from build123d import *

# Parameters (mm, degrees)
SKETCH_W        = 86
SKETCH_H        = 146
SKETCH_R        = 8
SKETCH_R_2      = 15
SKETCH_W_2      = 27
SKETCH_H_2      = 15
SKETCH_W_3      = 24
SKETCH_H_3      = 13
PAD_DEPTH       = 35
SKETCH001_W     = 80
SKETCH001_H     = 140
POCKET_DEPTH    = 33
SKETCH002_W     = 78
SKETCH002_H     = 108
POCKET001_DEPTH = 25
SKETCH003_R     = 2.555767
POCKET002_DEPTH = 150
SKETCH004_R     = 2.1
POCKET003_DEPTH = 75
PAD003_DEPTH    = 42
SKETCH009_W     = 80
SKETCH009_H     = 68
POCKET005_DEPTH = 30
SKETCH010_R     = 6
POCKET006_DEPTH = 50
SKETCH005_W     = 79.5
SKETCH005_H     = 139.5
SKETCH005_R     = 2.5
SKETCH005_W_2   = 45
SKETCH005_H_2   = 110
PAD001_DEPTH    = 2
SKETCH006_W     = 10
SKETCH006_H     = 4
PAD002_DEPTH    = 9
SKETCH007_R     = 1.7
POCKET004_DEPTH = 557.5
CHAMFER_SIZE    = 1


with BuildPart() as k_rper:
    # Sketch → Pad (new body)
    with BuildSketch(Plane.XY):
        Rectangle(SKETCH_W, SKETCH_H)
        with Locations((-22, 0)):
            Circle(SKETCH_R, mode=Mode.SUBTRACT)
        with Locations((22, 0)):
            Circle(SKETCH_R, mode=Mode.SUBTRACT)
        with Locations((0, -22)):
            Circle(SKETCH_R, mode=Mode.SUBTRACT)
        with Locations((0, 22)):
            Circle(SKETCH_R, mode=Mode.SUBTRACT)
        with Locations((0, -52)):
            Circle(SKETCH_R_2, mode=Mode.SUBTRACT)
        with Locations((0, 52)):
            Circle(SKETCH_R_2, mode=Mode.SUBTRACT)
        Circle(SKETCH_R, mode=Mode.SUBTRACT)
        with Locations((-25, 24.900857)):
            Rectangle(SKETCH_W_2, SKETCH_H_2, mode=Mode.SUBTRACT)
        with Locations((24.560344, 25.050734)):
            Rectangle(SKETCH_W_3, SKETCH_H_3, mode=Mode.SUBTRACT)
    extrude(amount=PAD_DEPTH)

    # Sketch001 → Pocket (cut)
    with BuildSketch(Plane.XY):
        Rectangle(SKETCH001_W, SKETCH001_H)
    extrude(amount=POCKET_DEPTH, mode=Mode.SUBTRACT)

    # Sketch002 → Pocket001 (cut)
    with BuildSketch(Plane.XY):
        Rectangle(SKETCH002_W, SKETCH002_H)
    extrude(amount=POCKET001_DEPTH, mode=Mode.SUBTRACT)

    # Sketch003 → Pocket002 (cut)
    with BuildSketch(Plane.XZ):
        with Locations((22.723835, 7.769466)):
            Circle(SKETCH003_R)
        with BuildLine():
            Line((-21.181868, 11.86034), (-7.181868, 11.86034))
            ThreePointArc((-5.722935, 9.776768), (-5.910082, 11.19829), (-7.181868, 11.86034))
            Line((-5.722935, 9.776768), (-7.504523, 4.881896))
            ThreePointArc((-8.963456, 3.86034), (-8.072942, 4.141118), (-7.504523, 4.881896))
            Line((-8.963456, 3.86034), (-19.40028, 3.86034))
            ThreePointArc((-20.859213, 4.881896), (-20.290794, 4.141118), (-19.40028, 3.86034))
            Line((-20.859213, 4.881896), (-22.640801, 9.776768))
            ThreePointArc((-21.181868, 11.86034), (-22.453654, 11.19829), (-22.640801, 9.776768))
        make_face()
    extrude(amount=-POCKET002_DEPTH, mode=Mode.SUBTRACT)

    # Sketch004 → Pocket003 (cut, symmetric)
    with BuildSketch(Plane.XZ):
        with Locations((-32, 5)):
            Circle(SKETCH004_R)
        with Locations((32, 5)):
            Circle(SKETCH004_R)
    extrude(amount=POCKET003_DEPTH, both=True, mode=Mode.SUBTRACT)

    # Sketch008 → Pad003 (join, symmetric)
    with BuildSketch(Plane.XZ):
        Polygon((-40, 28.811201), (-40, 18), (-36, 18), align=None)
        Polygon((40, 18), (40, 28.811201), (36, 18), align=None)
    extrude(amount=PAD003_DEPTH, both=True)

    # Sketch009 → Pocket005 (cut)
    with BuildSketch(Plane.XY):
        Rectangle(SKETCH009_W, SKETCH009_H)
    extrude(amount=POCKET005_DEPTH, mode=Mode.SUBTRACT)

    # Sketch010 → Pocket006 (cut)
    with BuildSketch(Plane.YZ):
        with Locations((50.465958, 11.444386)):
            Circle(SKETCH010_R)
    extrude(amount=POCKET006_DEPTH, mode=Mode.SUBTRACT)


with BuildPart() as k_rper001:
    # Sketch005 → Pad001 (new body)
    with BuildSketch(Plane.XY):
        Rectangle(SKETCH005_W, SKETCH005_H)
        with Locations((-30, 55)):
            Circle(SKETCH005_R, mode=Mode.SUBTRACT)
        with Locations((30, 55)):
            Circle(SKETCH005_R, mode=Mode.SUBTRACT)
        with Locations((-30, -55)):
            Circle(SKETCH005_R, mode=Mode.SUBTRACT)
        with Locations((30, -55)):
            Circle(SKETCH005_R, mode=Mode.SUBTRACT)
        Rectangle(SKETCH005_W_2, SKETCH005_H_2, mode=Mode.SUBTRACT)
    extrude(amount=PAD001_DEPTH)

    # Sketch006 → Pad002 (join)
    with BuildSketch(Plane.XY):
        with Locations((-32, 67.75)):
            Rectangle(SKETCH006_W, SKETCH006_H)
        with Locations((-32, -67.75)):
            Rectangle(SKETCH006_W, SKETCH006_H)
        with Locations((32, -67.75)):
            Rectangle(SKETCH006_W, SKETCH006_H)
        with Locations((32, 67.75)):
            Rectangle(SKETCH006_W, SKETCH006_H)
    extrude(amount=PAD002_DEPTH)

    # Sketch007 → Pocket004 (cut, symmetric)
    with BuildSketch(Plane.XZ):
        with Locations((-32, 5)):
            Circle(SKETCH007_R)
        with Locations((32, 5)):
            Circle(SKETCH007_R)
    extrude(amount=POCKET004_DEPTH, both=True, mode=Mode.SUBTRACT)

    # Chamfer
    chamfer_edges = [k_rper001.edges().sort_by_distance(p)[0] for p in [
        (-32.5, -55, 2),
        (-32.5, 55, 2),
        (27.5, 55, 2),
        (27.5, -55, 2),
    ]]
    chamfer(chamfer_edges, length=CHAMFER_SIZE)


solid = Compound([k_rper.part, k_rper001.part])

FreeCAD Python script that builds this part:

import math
import FreeCAD as App
import Part
import Sketcher
Q = App.Units.Quantity


def edges_at(feature, points):
    """Names of the edges that pass closest to the given points."""
    edges = feature.Shape.Edges
    near = lambda p: min(range(len(edges)), key=lambda i: edges[i].distToShape(Part.Vertex(*p))[0])
    return sorted({f"Edge{near(p) + 1}" for p in points})


def add_polygon(sketch, points):
    """Adds a closed chain of lines whose ends are joined by coincident constraints."""
    first, n = sketch.GeometryCount, len(points)
    for a, b in zip(points, points[1:] + points[:1]):
        sketch.addGeometry(Part.LineSegment(App.Vector(*a, 0), App.Vector(*b, 0)), False)
    for i in range(n):
        sketch.addConstraint(Sketcher.Constraint("Coincident", first + i, 2, first + (i + 1) % n, 1))

doc = App.newDocument("Part")
body = doc.addObject("PartDesign::Body", "Body")

sketch1 = body.newObject("Sketcher::SketchObject", "Sketch")
sketch1.AttachmentSupport = (doc.getObject("XY_Plane"), [""])
sketch1.MapMode = "FlatFace"
add_polygon(sketch1, [(-43, 73), (-43, -73), (43, -73), (43, 73)])
sketch1.addGeometry(Part.Circle(App.Vector(0, -52, 0), App.Vector(0, 0, 1), 15), False)
sketch1.addGeometry(Part.Circle(App.Vector(0, -22, 0), App.Vector(0, 0, 1), 8), False)
sketch1.addGeometry(Part.Circle(App.Vector(-22, 0, 0), App.Vector(0, 0, 1), 8), False)
add_polygon(sketch1, [(-11.5, 17.400857), (-38.5, 17.400857), (-38.5, 32.400857), (-11.5, 32.400857)])
sketch1.addGeometry(Part.Circle(App.Vector(0, 0, 0), App.Vector(0, 0, 1), 8), False)
sketch1.addGeometry(Part.Circle(App.Vector(0, 22, 0), App.Vector(0, 0, 1), 8), False)
sketch1.addGeometry(Part.Circle(App.Vector(22, 0, 0), App.Vector(0, 0, 1), 8), False)
add_polygon(sketch1, [(36.560344, 18.550734), (12.560344, 18.550734), (12.560344, 31.550734), (36.560344, 31.550734)])
sketch1.addGeometry(Part.Circle(App.Vector(0, 52, 0), App.Vector(0, 0, 1), 15), False)
sketch1.addConstraint(Sketcher.Constraint("Vertical", 0))
sketch1.addConstraint(Sketcher.Constraint("Horizontal", 1))
sketch1.addConstraint(Sketcher.Constraint("Vertical", 2))
sketch1.addConstraint(Sketcher.Constraint("Horizontal", 3))
sketch1.addConstraint(Sketcher.Constraint("Horizontal", 7))
sketch1.addConstraint(Sketcher.Constraint("Vertical", 8))
sketch1.addConstraint(Sketcher.Constraint("Horizontal", 9))
sketch1.addConstraint(Sketcher.Constraint("Vertical", 10))
sketch1.addConstraint(Sketcher.Constraint("Horizontal", 14))
sketch1.addConstraint(Sketcher.Constraint("Vertical", 15))
sketch1.addConstraint(Sketcher.Constraint("Horizontal", 16))
sketch1.addConstraint(Sketcher.Constraint("Vertical", 17))
sketch1.addConstraint(Sketcher.Constraint("Coincident", 11, 3, -1, 1))
sketch1.addConstraint(Sketcher.Constraint("Equal", 5, 6))
sketch1.addConstraint(Sketcher.Constraint("Equal", 6, 11))
sketch1.addConstraint(Sketcher.Constraint("Equal", 11, 12))
sketch1.addConstraint(Sketcher.Constraint("Equal", 12, 13))
sketch1.addConstraint(Sketcher.Constraint("Equal", 4, 18))
sketch1.addConstraint(Sketcher.Constraint("Symmetric", 5, 3, 12, 3, -1, 1))
sketch1.addConstraint(Sketcher.Constraint("Symmetric", 6, 3, 13, 3, -1, 1))
sketch1.addConstraint(Sketcher.Constraint("Symmetric", 4, 3, 18, 3, -1, 1))
sketch1.addConstraint(Sketcher.Constraint("Symmetric", 0, 2, 2, 2, -1, 1))
sketch1.addConstraint(Sketcher.Constraint("PointOnObject", 4, 3, -2))
sketch1.addConstraint(Sketcher.Constraint("PointOnObject", 5, 3, -2))
sketch1.addConstraint(Sketcher.Constraint("PointOnObject", 6, 3, -1))
sketch1.addConstraint(Sketcher.Constraint("Diameter", 4, 30.0))
sketch1.addConstraint(Sketcher.Constraint("Diameter", 5, 16.0))
sketch1.addConstraint(Sketcher.Constraint("DistanceX", 1, 1, 1, 2, 86.0))
sketch1.addConstraint(Sketcher.Constraint("DistanceX", 7, 2, 7, 1, 27.0))
sketch1.addConstraint(Sketcher.Constraint("DistanceX", 14, 2, 14, 1, 24.0))
sketch1.addConstraint(Sketcher.Constraint("DistanceY", 0, 2, 0, 1, 146.0))
sketch1.addConstraint(Sketcher.Constraint("DistanceY", 8, 1, 8, 2, 15.0))
sketch1.addConstraint(Sketcher.Constraint("DistanceY", 15, 1, 15, 2, 13.0))
sketch1.addConstraint(Sketcher.Constraint("DistanceY", 4, 3, -1, 1, 52.0))
sketch1.addConstraint(Sketcher.Constraint("DistanceY", 5, 3, -1, 1, 22.0))
sketch1.addConstraint(Sketcher.Constraint("DistanceX", 6, 3, -1, 1, 22.0))
sketch1.addConstraint(Sketcher.Constraint("DistanceX", 7, 2, -1, 1, 38.5))
sketch1.addConstraint(Sketcher.Constraint("DistanceY", -1, 1, 7, 2, 17.400857))
sketch1.addConstraint(Sketcher.Constraint("DistanceX", -1, 1, 14, 2, 12.560344))
sketch1.addConstraint(Sketcher.Constraint("DistanceY", -1, 1, 14, 2, 18.550734))
pad1 = body.newObject("PartDesign::Pad", "Pad")
pad1.Profile = sketch1
pad1.Length = 35

sketch2 = body.newObject("Sketcher::SketchObject", "Sketch001")
sketch2.AttachmentSupport = (doc.getObject("XY_Plane"), [""])
sketch2.MapMode = "FlatFace"
add_polygon(sketch2, [(-40, 70), (-40, -70), (40, -70), (40, 70)])
sketch2.addConstraint(Sketcher.Constraint("Vertical", 0))
sketch2.addConstraint(Sketcher.Constraint("Horizontal", 1))
sketch2.addConstraint(Sketcher.Constraint("Vertical", 2))
sketch2.addConstraint(Sketcher.Constraint("Horizontal", 3))
sketch2.addConstraint(Sketcher.Constraint("Symmetric", 0, 2, 2, 2, -1, 1))
sketch2.addConstraint(Sketcher.Constraint("DistanceX", 1, 1, 1, 2, 80.0))
sketch2.addConstraint(Sketcher.Constraint("DistanceY", 0, 2, 0, 1, 140.0))
pocket1 = body.newObject("PartDesign::Pocket", "Pocket")
pocket1.Profile = sketch2
pocket1.Length = 33
pocket1.Reversed = True

sketch3 = body.newObject("Sketcher::SketchObject", "Sketch002")
sketch3.AttachmentSupport = (doc.getObject("XY_Plane"), [""])
sketch3.MapMode = "FlatFace"
add_polygon(sketch3, [(-39, 54), (-39, -54), (39, -54), (39, 54)])
sketch3.addConstraint(Sketcher.Constraint("Vertical", 0))
sketch3.addConstraint(Sketcher.Constraint("Horizontal", 1))
sketch3.addConstraint(Sketcher.Constraint("Vertical", 2))
sketch3.addConstraint(Sketcher.Constraint("Horizontal", 3))
sketch3.addConstraint(Sketcher.Constraint("Symmetric", 0, 2, 2, 2, -1, 1))
sketch3.addConstraint(Sketcher.Constraint("DistanceX", 1, 1, 1, 2, 78.0))
sketch3.addConstraint(Sketcher.Constraint("DistanceY", 0, 2, 0, 1, 108.0))
pocket2 = body.newObject("PartDesign::Pocket", "Pocket001")
pocket2.Profile = sketch3
pocket2.Length = 25
pocket2.Reversed = True

sketch4 = body.newObject("Sketcher::SketchObject", "Sketch003")
sketch4.AttachmentSupport = (doc.getObject("XZ_Plane"), [""])
sketch4.MapMode = "FlatFace"
sketch4.addGeometry(Part.Circle(App.Vector(22.723835, 7.769466, 0), App.Vector(0, 0, 1), 2.555767), False)
sketch4.addGeometry(Part.LineSegment(App.Vector(-7.181868, 11.86034, 0), App.Vector(-21.181868, 11.86034, 0)), False)
sketch4.addGeometry(Part.ArcOfCircle(Part.Circle(App.Vector(-21.181868, 10.307776, 0), App.Vector(0, 0, 1), 1.552564), math.radians(90.000004), math.radians(199.99999)), False)
sketch4.addGeometry(Part.LineSegment(App.Vector(-22.640801, 9.776768, 0), App.Vector(-20.859213, 4.881896, 0)), False)
sketch4.addGeometry(Part.ArcOfCircle(Part.Circle(App.Vector(-19.40028, 5.412904, 0), App.Vector(0, 0, 1), 1.552564), math.radians(-160), math.radians(-90.000006)), False)
sketch4.addGeometry(Part.LineSegment(App.Vector(-19.40028, 3.86034, 0), App.Vector(-8.963456, 3.86034, 0)), False)
sketch4.addGeometry(Part.ArcOfCircle(Part.Circle(App.Vector(-8.963456, 5.412904, 0), App.Vector(0, 0, 1), 1.552564), math.radians(-89.999994), math.radians(-20)), False)
sketch4.addGeometry(Part.LineSegment(App.Vector(-7.504523, 4.881896, 0), App.Vector(-5.722935, 9.776768, 0)), False)
sketch4.addGeometry(Part.ArcOfCircle(Part.Circle(App.Vector(-7.181868, 10.307776, 0), App.Vector(0, 0, 1), 1.552564), math.radians(-19.99999), math.radians(89.999996)), False)
sketch4.addConstraint(Sketcher.Constraint("Tangent", 1, 2, 2, 1))
sketch4.addConstraint(Sketcher.Constraint("Tangent", 2, 2, 3, 1))
sketch4.addConstraint(Sketcher.Constraint("Tangent", 3, 2, 4, 1))
sketch4.addConstraint(Sketcher.Constraint("Tangent", 4, 2, 5, 1))
sketch4.addConstraint(Sketcher.Constraint("Tangent", 5, 2, 6, 1))
sketch4.addConstraint(Sketcher.Constraint("Tangent", 6, 2, 7, 1))
sketch4.addConstraint(Sketcher.Constraint("Tangent", 7, 2, 8, 1))
sketch4.addConstraint(Sketcher.Constraint("Tangent", 8, 2, 1, 1))
sketch4.addConstraint(Sketcher.Constraint("Horizontal", 1))
sketch4.addConstraint(Sketcher.Constraint("Horizontal", 5))
sketch4.addConstraint(Sketcher.Constraint("Equal", 2, 4))
sketch4.addConstraint(Sketcher.Constraint("Equal", 4, 6))
sketch4.addConstraint(Sketcher.Constraint("Equal", 6, 8))
sketch4.addConstraint(Sketcher.Constraint("Horizontal", 3, 2, 6, 2))
sketch4.addConstraint(Sketcher.Constraint("DistanceX", 1, 2, 1, 1, 14.0))
sketch4.addConstraint(Sketcher.Constraint("Angle", 3, Q("-69.999997 deg")))
sketch4.addConstraint(Sketcher.Constraint("DistanceY", 4, 2, 1, 2, 8.0))
sketch4.addConstraint(Sketcher.Constraint("Diameter", 0, 5.111534))
sketch4.addConstraint(Sketcher.Constraint("Radius", 2, 1.552564))
sketch4.addConstraint(Sketcher.Constraint("DistanceX", 2, 2, -1, 1, 22.640801))
sketch4.addConstraint(Sketcher.Constraint("DistanceY", -1, 1, 1, 2, 11.86034))
sketch4.addConstraint(Sketcher.Constraint("DistanceY", 0, 3, 2, 3, 2.53831))
sketch4.addConstraint(Sketcher.Constraint("DistanceX", 6, 3, 0, 3, 31.687291))
pocket3 = body.newObject("PartDesign::Pocket", "Pocket002")
pocket3.Profile = sketch4
pocket3.Length = 150

sketch5 = body.newObject("Sketcher::SketchObject", "Sketch004")
sketch5.AttachmentSupport = (doc.getObject("XZ_Plane"), [""])
sketch5.MapMode = "FlatFace"
sketch5.addGeometry(Part.Circle(App.Vector(-32, 5, 0), App.Vector(0, 0, 1), 2.1), False)
sketch5.addGeometry(Part.Circle(App.Vector(32, 5, 0), App.Vector(0, 0, 1), 2.1), False)
sketch5.addConstraint(Sketcher.Constraint("Equal", 0, 1))
sketch5.addConstraint(Sketcher.Constraint("Symmetric", 0, 3, 1, 3, -2))
sketch5.addConstraint(Sketcher.Constraint("Diameter", 0, 4.2))
sketch5.addConstraint(Sketcher.Constraint("DistanceX", 0, 3, -1, 1, 32.0))
sketch5.addConstraint(Sketcher.Constraint("DistanceY", -1, 1, 0, 3, 5.0))
pocket4 = body.newObject("PartDesign::Pocket", "Pocket003")
pocket4.Profile = sketch5
pocket4.Length = 150
pocket4.Midplane = True

sketch6 = body.newObject("Sketcher::SketchObject", "Sketch005")
sketch6.AttachmentSupport = (doc.getObject("XZ_Plane"), [""])
sketch6.MapMode = "FlatFace"
add_polygon(sketch6, [(-40, 28.811201), (-40, 18), (-36, 18)])
add_polygon(sketch6, [(40, 18), (40, 28.811201), (36, 18)])
sketch6.addConstraint(Sketcher.Constraint("Vertical", 0))
sketch6.addConstraint(Sketcher.Constraint("Horizontal", 1))
sketch6.addConstraint(Sketcher.Constraint("Vertical", 3))
sketch6.addConstraint(Sketcher.Constraint("Horizontal", 5))
sketch6.addConstraint(Sketcher.Constraint("Symmetric", 2, 2, 3, 2, -2))
sketch6.addConstraint(Sketcher.Constraint("Symmetric", 1, 2, 4, 2, -2))
sketch6.addConstraint(Sketcher.Constraint("DistanceX", 1, 1, 1, 2, 4.0))
sketch6.addConstraint(Sketcher.Constraint("DistanceX", 0, 2, -1, 1, 40.0))
sketch6.addConstraint(Sketcher.Constraint("DistanceY", -1, 1, 0, 2, 18.0))
sketch6.addConstraint(Sketcher.Constraint("DistanceY", 0, 2, 0, 1, 10.811201))
pad2 = body.newObject("PartDesign::Pad", "Pad001")
pad2.Profile = sketch6
pad2.Length = 84
pad2.Midplane = True

sketch7 = body.newObject("Sketcher::SketchObject", "Sketch006")
sketch7.AttachmentSupport = (doc.getObject("XY_Plane"), [""])
sketch7.MapMode = "FlatFace"
add_polygon(sketch7, [(-40, 34), (-40, -34), (40, -34), (40, 34)])
sketch7.addConstraint(Sketcher.Constraint("Vertical", 0))
sketch7.addConstraint(Sketcher.Constraint("Horizontal", 1))
sketch7.addConstraint(Sketcher.Constraint("Vertical", 2))
sketch7.addConstraint(Sketcher.Constraint("Horizontal", 3))
sketch7.addConstraint(Sketcher.Constraint("Symmetric", 0, 2, 2, 2, -1, 1))
sketch7.addConstraint(Sketcher.Constraint("DistanceX", 1, 1, 1, 2, 80.0))
sketch7.addConstraint(Sketcher.Constraint("DistanceY", 0, 2, 0, 1, 68.0))
pocket5 = body.newObject("PartDesign::Pocket", "Pocket004")
pocket5.Profile = sketch7
pocket5.Length = 30
pocket5.Reversed = True

sketch8 = body.newObject("Sketcher::SketchObject", "Sketch007")
sketch8.AttachmentSupport = (doc.getObject("YZ_Plane"), [""])
sketch8.MapMode = "FlatFace"
sketch8.addGeometry(Part.Circle(App.Vector(50.465958, 11.444386, 0), App.Vector(0, 0, 1), 6), False)
sketch8.addConstraint(Sketcher.Constraint("Diameter", 0, 12.0))
sketch8.addConstraint(Sketcher.Constraint("DistanceX", -1, 1, 0, 3, 50.465958))
sketch8.addConstraint(Sketcher.Constraint("DistanceY", -1, 1, 0, 3, 11.444386))
pocket6 = body.newObject("PartDesign::Pocket", "Pocket005")
pocket6.Profile = sketch8
pocket6.Length = 50
pocket6.Reversed = True
body2 = doc.addObject("PartDesign::Body", "Body001")

sketch9 = body2.newObject("Sketcher::SketchObject", "Sketch008")
sketch9.AttachmentSupport = (doc.getObject("XY_Plane001"), [""])
sketch9.MapMode = "FlatFace"
add_polygon(sketch9, [(-39.75, 69.75), (-39.75, -69.75), (39.75, -69.75), (39.75, 69.75)])
sketch9.addGeometry(Part.Circle(App.Vector(-30, -55, 0), App.Vector(0, 0, 1), 2.5), False)
sketch9.addGeometry(Part.Circle(App.Vector(30, -55, 0), App.Vector(0, 0, 1), 2.5), False)
sketch9.addGeometry(Part.Circle(App.Vector(-30, 55, 0), App.Vector(0, 0, 1), 2.5), False)
add_polygon(sketch9, [(22.5, -55), (-22.5, -55), (-22.5, 55), (22.5, 55)])
sketch9.addGeometry(Part.Circle(App.Vector(30, 55, 0), App.Vector(0, 0, 1), 2.5), False)
sketch9.addConstraint(Sketcher.Constraint("Vertical", 0))
sketch9.addConstraint(Sketcher.Constraint("Horizontal", 1))
sketch9.addConstraint(Sketcher.Constraint("Vertical", 2))
sketch9.addConstraint(Sketcher.Constraint("Horizontal", 3))
sketch9.addConstraint(Sketcher.Constraint("Horizontal", 7))
sketch9.addConstraint(Sketcher.Constraint("Vertical", 8))
sketch9.addConstraint(Sketcher.Constraint("Horizontal", 9))
sketch9.addConstraint(Sketcher.Constraint("Vertical", 10))
sketch9.addConstraint(Sketcher.Constraint("Equal", 4, 5))
sketch9.addConstraint(Sketcher.Constraint("Equal", 5, 6))
sketch9.addConstraint(Sketcher.Constraint("Equal", 6, 11))
sketch9.addConstraint(Sketcher.Constraint("Symmetric", 5, 3, 6, 3, -1, 1))
sketch9.addConstraint(Sketcher.Constraint("Symmetric", 4, 3, 11, 3, -1, 1))
sketch9.addConstraint(Sketcher.Constraint("Symmetric", 0, 2, 2, 2, -1, 1))
sketch9.addConstraint(Sketcher.Constraint("Symmetric", 7, 2, 9, 2, -1, 1))
sketch9.addConstraint(Sketcher.Constraint("Symmetric", 4, 3, 5, 3, -2))
sketch9.addConstraint(Sketcher.Constraint("Horizontal", 5, 3, 7, 2))
sketch9.addConstraint(Sketcher.Constraint("Diameter", 4, 5.0))
sketch9.addConstraint(Sketcher.Constraint("DistanceX", 7, 2, 7, 1, 45.0))
sketch9.addConstraint(Sketcher.Constraint("DistanceY", 8, 1, 8, 2, 110.0))
sketch9.addConstraint(Sketcher.Constraint("DistanceX", 1, 1, 1, 2, 79.5))
sketch9.addConstraint(Sketcher.Constraint("DistanceY", 0, 2, 0, 1, 139.5))
sketch9.addConstraint(Sketcher.Constraint("DistanceX", 4, 3, -1, 1, 30.0))
pad3 = body2.newObject("PartDesign::Pad", "Pad002")
pad3.Profile = sketch9
pad3.Length = 2

sketch10 = body2.newObject("Sketcher::SketchObject", "Sketch009")
sketch10.AttachmentSupport = (doc.getObject("XY_Plane001"), [""])
sketch10.MapMode = "FlatFace"
add_polygon(sketch10, [(-37, 69.75), (-37, 65.75), (-27, 65.75), (-27, 69.75)])
add_polygon(sketch10, [(-37, -65.75), (-37, -69.75), (-27, -69.75), (-27, -65.75)])
add_polygon(sketch10, [(27, -65.75), (27, -69.75), (37, -69.75), (37, -65.75)])
add_polygon(sketch10, [(27, 69.75), (27, 65.75), (37, 65.75), (37, 69.75)])
sketch10.addConstraint(Sketcher.Constraint("Vertical", 0))
sketch10.addConstraint(Sketcher.Constraint("Horizontal", 1))
sketch10.addConstraint(Sketcher.Constraint("Vertical", 2))
sketch10.addConstraint(Sketcher.Constraint("Horizontal", 3))
sketch10.addConstraint(Sketcher.Constraint("Vertical", 4))
sketch10.addConstraint(Sketcher.Constraint("Horizontal", 5))
sketch10.addConstraint(Sketcher.Constraint("Vertical", 6))
sketch10.addConstraint(Sketcher.Constraint("Horizontal", 7))
sketch10.addConstraint(Sketcher.Constraint("Vertical", 8))
sketch10.addConstraint(Sketcher.Constraint("Horizontal", 9))
sketch10.addConstraint(Sketcher.Constraint("Vertical", 10))
sketch10.addConstraint(Sketcher.Constraint("Horizontal", 11))
sketch10.addConstraint(Sketcher.Constraint("Vertical", 12))
sketch10.addConstraint(Sketcher.Constraint("Horizontal", 13))
sketch10.addConstraint(Sketcher.Constraint("Vertical", 14))
sketch10.addConstraint(Sketcher.Constraint("Horizontal", 15))
sketch10.addConstraint(Sketcher.Constraint("Symmetric", 2, 2, 8, 2, -1, 1))
sketch10.addConstraint(Sketcher.Constraint("Symmetric", 0, 2, 10, 2, -1, 1))
sketch10.addConstraint(Sketcher.Constraint("Symmetric", 6, 2, 12, 2, -1, 1))
sketch10.addConstraint(Sketcher.Constraint("Symmetric", 4, 2, 14, 2, -1, 1))
sketch10.addConstraint(Sketcher.Constraint("Symmetric", 5, 2, 8, 2, -2))
sketch10.addConstraint(Sketcher.Constraint("Symmetric", 7, 2, 10, 2, -2))
sketch10.addConstraint(Sketcher.Constraint("DistanceX", 1, 1, 1, 2, 10.0))
sketch10.addConstraint(Sketcher.Constraint("DistanceY", 0, 2, 0, 1, 4.0))
sketch10.addConstraint(Sketcher.Constraint("DistanceX", 0, 2, -1, 1, 37.0))
sketch10.addConstraint(Sketcher.Constraint("DistanceY", 4, 2, 0, 2, 135.5))
pad4 = body2.newObject("PartDesign::Pad", "Pad003")
pad4.Profile = sketch10
pad4.Length = 9

sketch11 = body2.newObject("Sketcher::SketchObject", "Sketch010")
sketch11.AttachmentSupport = (doc.getObject("XZ_Plane001"), [""])
sketch11.MapMode = "FlatFace"
sketch11.addGeometry(Part.Circle(App.Vector(-32, 5, 0), App.Vector(0, 0, 1), 1.7), False)
sketch11.addGeometry(Part.Circle(App.Vector(32, 5, 0), App.Vector(0, 0, 1), 1.7), False)
sketch11.addConstraint(Sketcher.Constraint("Equal", 0, 1))
sketch11.addConstraint(Sketcher.Constraint("Symmetric", 0, 3, 1, 3, -2))
sketch11.addConstraint(Sketcher.Constraint("Diameter", 0, 3.4))
sketch11.addConstraint(Sketcher.Constraint("DistanceX", 0, 3, -1, 1, 32.0))
sketch11.addConstraint(Sketcher.Constraint("DistanceY", -1, 1, 0, 3, 5.0))
pocket7 = body2.newObject("PartDesign::Pocket", "Pocket006")
pocket7.Profile = sketch11
pocket7.Length = 1115
pocket7.Midplane = True
doc.recompute()

chamfer = body2.newObject("PartDesign::Chamfer", "Chamfer")
chamfer.Base = (pocket7, edges_at(pocket7, [
    (-32.5, -55, 2),
    (-32.5, 55, 2),
    (27.5, 55, 2),
    (27.5, -55, 2),
]))
chamfer.Size = 1

doc.recompute()
